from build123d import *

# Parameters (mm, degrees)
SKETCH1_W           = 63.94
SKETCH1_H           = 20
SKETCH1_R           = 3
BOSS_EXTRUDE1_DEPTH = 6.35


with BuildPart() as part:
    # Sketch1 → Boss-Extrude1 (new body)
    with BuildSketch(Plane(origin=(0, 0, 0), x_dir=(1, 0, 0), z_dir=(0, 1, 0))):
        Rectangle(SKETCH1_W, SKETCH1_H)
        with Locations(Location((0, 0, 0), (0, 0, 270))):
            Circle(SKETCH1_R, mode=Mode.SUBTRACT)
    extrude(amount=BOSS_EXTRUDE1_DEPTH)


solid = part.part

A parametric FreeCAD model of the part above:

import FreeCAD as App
import Part
import Sketcher
from FreeCAD import Vector
Q = App.Units.Quantity

doc = App.newDocument("Part")
body = doc.addObject("PartDesign::Body", "Body")

# Sketch on XZ plane
sketch1 = doc.addObject("Sketcher::SketchObject", "Sketch")
body.addObject(sketch1)
sketch1.AttachmentSupport = (doc.XZ_Plane, [""])
sketch1.MapMode = "FlatFace"
sketch1.addGeometry([
    Part.LineSegment(Vector(-31.97, -10, 0), Vector(-31.97, 10, 0)),  # 0
    Part.LineSegment(Vector(-31.97, 10, 0), Vector(31.97, 10, 0)),  # 1
    Part.LineSegment(Vector(31.97, 10, 0), Vector(31.97, -10, 0)),  # 2
    Part.LineSegment(Vector(31.97, -10, 0), Vector(-31.97, -10, 0)),  # 3
    Part.Circle(Vector(0, 0, 0), Vector(0, 0, 1), 3),  # 4
], False)
sketch1.addConstraint([
    Sketcher.Constraint("Coincident", 0, 2, 1, 1),
    Sketcher.Constraint("Coincident", 1, 2, 2, 1),
    Sketcher.Constraint("Coincident", 2, 2, 3, 1),
    Sketcher.Constraint("Coincident", 3, 2, 0, 1),
    Sketcher.Constraint("Vertical", 0),
    Sketcher.Constraint("Horizontal", 1),
    Sketcher.Constraint("Vertical", 2),
    Sketcher.Constraint("Horizontal", 3),
    Sketcher.Constraint("Coincident", 4, 3, -1, 1),
    Sketcher.Constraint("Symmetric", 0, 2, 2, 2, -1, 1),
    Sketcher.Constraint("Diameter", 4, Q("6 mm")),
    Sketcher.Constraint("DistanceY", 0, 1, 0, 2, Q("20 mm")),
    Sketcher.Constraint("DistanceX", 1, 1, 1, 2, Q("63.94 mm")),
])
pad1 = doc.addObject("PartDesign::Pad", "Pad")
body.addObject(pad1)
pad1.Profile = sketch1
pad1.Length = 6.35
pad1.Reversed = True

doc.recompute()
